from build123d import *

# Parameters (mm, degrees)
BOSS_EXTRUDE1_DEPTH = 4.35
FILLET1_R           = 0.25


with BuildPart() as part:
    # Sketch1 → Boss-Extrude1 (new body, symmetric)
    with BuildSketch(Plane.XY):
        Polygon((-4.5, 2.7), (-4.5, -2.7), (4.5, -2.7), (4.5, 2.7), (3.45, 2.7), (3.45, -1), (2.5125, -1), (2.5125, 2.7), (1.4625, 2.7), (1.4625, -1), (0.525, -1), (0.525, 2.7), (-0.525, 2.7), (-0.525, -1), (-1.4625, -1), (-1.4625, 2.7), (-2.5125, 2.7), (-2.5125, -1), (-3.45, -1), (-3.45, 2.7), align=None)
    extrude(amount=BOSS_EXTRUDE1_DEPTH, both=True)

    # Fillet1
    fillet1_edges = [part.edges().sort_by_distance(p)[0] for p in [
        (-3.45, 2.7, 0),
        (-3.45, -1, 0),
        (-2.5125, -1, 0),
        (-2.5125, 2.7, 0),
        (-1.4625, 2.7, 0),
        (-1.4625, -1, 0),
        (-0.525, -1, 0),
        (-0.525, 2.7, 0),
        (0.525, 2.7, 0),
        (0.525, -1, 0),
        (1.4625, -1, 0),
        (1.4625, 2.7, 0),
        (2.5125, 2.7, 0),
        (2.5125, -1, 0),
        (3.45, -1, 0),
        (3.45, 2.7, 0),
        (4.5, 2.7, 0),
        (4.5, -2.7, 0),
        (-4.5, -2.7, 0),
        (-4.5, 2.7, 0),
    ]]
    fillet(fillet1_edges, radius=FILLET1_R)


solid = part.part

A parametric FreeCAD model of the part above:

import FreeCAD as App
import Part
import Sketcher

V = App.Vector


def edges_at(feature, points):
    """Names of the edges that pass closest to the given points."""
    edges = feature.Shape.Edges
    near = lambda p: min(range(len(edges)), key=lambda i: edges[i].distToShape(Part.Vertex(*p))[0])
    return sorted({f"Edge{near(p) + 1}" for p in points})

doc = App.newDocument("Part")
body = doc.addObject("PartDesign::Body", "Body")

# Sketch on XY plane
sketch1 = body.newObject("Sketcher::SketchObject", "Sketch")
sketch1.AttachmentSupport = (doc.getObject("XY_Plane"), [""])
sketch1.MapMode = "FlatFace"
sketch1.addGeometry([
    Part.LineSegment(V(-4.5, 2.7, 0), V(-4.5, -2.7, 0)),  # 0
    Part.LineSegment(V(-4.5, -2.7, 0), V(4.5, -2.7, 0)),  # 1
    Part.LineSegment(V(4.5, -2.7, 0), V(4.5, 2.7, 0)),  # 2
    Part.LineSegment(V(4.5, 2.7, 0), V(3.5, 2.7, 0)),  # 3
    Part.LineSegment(V(3.5, 2.7, 0), V(3.5, -1, 0)),  # 4
    Part.LineSegment(V(3.5, -1, 0), V(2.5, -1, 0)),  # 5
    Part.LineSegment(V(2.5, -1, 0), V(2.5, 2.7, 0)),  # 6
    Part.LineSegment(V(2.5, 2.7, 0), V(1.5, 2.7, 0)),  # 7
    Part.LineSegment(V(1.5, 2.7, 0), V(1.5, -1, 0)),  # 8
    Part.LineSegment(V(1.5, -1, 0), V(0.5, -1, 0)),  # 9
    Part.LineSegment(V(0.5, -1, 0), V(0.5, 2.7, 0)),  # 10
    Part.LineSegment(V(0.5, 2.7, 0), V(-0.5, 2.7, 0)),  # 11
    Part.LineSegment(V(-0.5, 2.7, 0), V(-0.5, -1, 0)),  # 12
    Part.LineSegment(V(-0.5, -1, 0), V(-1.5, -1, 0)),  # 13
    Part.LineSegment(V(-1.5, -1, 0), V(-1.5, 2.7, 0)),  # 14
    Part.LineSegment(V(-1.5, 2.7, 0), V(-2.5, 2.7, 0)),  # 15
    Part.LineSegment(V(-2.5, 2.7, 0), V(-2.5, -1, 0)),  # 16
    Part.LineSegment(V(-2.5, -1, 0), V(-3.5, -1, 0)),  # 17
    Part.LineSegment(V(-3.5, -1, 0), V(-3.5, 2.7, 0)),  # 18
    Part.LineSegment(V(-3.5, 2.7, 0), V(-4.5, 2.7, 0)),  # 19
], False)
sketch1.addConstraint([
    Sketcher.Constraint("Coincident", 0, 2, 1, 1),
    Sketcher.Constraint("Coincident", 1, 2, 2, 1),
    Sketcher.Constraint("Coincident", 2, 2, 3, 1),
    Sketcher.Constraint("Coincident", 3, 2, 4, 1),
    Sketcher.Constraint("Coincident", 4, 2, 5, 1),
    Sketcher.Constraint("Coincident", 5, 2, 6, 1),
    Sketcher.Constraint("Coincident", 6, 2, 7, 1),
    Sketcher.Constraint("Coincident", 7, 2, 8, 1),
    Sketcher.Constraint("Coincident", 8, 2, 9, 1),
    Sketcher.Constraint("Coincident", 9, 2, 10, 1),
    Sketcher.Constraint("Coincident", 10, 2, 11, 1),
    Sketcher.Constraint("Coincident", 11, 2, 12, 1),
    Sketcher.Constraint("Coincident", 12, 2, 13, 1),
    Sketcher.Constraint("Coincident", 13, 2, 14, 1),
    Sketcher.Constraint("Coincident", 14, 2, 15, 1),
    Sketcher.Constraint("Coincident", 15, 2, 16, 1),
    Sketcher.Constraint("Coincident", 16, 2, 17, 1),
    Sketcher.Constraint("Coincident", 17, 2, 18, 1),
    Sketcher.Constraint("Coincident", 18, 2, 19, 1),
    Sketcher.Constraint("Coincident", 19, 2, 0, 1),
    Sketcher.Constraint("Vertical", 0),
    Sketcher.Constraint("Horizontal", 1),
    Sketcher.Constraint("Vertical", 2),
    Sketcher.Constraint("Horizontal", 3),
    Sketcher.Constraint("Vertical", 4),
    Sketcher.Constraint("Horizontal", 5),
    Sketcher.Constraint("Vertical", 6),
    Sketcher.Constraint("Horizontal", 7),
    Sketcher.Constraint("Vertical", 8),
    Sketcher.Constraint("Horizontal", 9),
    Sketcher.Constraint("Vertical", 10),
    Sketcher.Constraint("Horizontal", 11),
    Sketcher.Constraint("Vertical", 12),
    Sketcher.Constraint("Horizontal", 13),
    Sketcher.Constraint("Vertical", 14),
    Sketcher.Constraint("Horizontal", 15),
    Sketcher.Constraint("Vertical", 16),
    Sketcher.Constraint("Horizontal", 17),
    Sketcher.Constraint("Vertical", 18),
    Sketcher.Constraint("Horizontal", 19),
    Sketcher.Constraint("Symmetric", 0, 2, 2, 2, -1, 1),
    Sketcher.Constraint("Symmetric", 9, 2, 12, 2, -2),
    Sketcher.Constraint("Symmetric", 7, 2, 14, 2, -2),
    Sketcher.Constraint("Symmetric", 5, 2, 16, 2, -2),
    Sketcher.Constraint("Symmetric", 3, 2, 18, 2, -2),
    Sketcher.Constraint("Horizontal", 3, 2, 6, 2),
    Sketcher.Constraint("Horizontal", 5, 2, 8, 2),
    Sketcher.Constraint("Horizontal", 7, 2, 10, 2),
    Sketcher.Constraint("Equal", 3, 7),
    Sketcher.Constraint("Equal", 5, 9),
    Sketcher.Constraint("Equal", 7, 11),
    Sketcher.Constraint("DistanceX", 1, 1, 1, 2, 9.0),
    Sketcher.Constraint("DistanceY", 0, 2, 0, 1, 5.4),
    Sketcher.Constraint("DistanceY", 4, 2, 4, 1, 3.7),
    Sketcher.Constraint("DistanceX", 3, 2, 3, 1, 1.05),
])
pad1 = body.newObject("PartDesign::Pad", "Pad")
pad1.Profile = sketch1
pad1.Length = 8.7
pad1.Midplane = True
doc.recompute()

fillet = body.newObject("PartDesign::Fillet", "Fillet")
fillet.Base = (pad1, edges_at(pad1, [
    (-3.45, 2.7, 0),
    (-3.45, -1, 0),
    (-2.513, -1, 0),
    (-2.513, 2.7, 0),
    (-1.462, 2.7, 0),
    (-1.462, -1, 0),
    (-0.525, -1, 0),
    (-0.525, 2.7, 0),
    (0.525, 2.7, 0),
    (0.525, -1, 0),
    (1.462, -1, 0),
    (1.462, 2.7, 0),
    (2.513, 2.7, 0),
    (2.513, -1, 0),
    (3.45, -1, 0),
    (3.45, 2.7, 0),
    (4.5, 2.7, 0),
    (4.5, -2.7, 0),
    (-4.5, -2.7, 0),
    (-4.5, 2.7, 0),
]))
fillet.Radius = 0.25

doc.recompute()
